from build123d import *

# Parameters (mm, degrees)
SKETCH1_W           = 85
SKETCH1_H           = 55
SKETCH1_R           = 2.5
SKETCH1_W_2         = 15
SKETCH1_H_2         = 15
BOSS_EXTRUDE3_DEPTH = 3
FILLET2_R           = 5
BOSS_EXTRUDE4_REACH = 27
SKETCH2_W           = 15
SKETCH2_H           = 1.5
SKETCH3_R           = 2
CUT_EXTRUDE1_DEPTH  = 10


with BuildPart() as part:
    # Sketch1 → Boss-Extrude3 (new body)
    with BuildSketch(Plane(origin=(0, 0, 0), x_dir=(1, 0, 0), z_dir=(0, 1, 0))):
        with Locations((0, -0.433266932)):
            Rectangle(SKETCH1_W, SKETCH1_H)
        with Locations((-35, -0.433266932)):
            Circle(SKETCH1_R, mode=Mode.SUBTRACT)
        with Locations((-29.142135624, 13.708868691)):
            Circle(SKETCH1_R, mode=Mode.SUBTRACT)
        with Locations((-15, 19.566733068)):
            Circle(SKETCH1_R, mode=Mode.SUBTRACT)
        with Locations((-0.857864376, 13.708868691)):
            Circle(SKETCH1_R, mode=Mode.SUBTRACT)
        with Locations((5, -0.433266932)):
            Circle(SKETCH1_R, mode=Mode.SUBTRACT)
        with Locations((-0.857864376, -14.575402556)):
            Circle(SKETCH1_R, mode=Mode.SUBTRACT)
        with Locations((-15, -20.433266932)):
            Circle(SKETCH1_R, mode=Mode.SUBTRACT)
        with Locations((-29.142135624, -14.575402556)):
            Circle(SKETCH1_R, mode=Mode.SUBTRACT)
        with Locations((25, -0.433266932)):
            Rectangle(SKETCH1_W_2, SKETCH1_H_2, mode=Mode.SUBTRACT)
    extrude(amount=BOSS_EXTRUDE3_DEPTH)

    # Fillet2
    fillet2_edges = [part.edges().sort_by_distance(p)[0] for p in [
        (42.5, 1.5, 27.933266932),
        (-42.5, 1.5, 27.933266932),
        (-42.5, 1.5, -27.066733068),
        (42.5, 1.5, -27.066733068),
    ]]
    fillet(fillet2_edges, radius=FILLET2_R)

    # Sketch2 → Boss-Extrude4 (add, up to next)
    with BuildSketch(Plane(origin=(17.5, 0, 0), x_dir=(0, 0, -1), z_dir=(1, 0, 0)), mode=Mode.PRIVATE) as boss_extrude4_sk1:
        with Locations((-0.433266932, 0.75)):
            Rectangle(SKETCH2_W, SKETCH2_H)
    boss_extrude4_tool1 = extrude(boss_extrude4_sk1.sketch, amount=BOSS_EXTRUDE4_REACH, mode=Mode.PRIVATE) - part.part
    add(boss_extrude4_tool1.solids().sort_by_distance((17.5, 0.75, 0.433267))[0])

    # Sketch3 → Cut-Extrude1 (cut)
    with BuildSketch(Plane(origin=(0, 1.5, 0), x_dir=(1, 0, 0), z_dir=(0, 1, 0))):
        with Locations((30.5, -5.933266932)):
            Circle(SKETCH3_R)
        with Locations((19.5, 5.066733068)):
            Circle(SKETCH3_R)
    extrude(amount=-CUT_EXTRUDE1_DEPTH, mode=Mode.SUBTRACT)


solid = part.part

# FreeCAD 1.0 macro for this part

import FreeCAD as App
import Part
import Sketcher

V = App.Vector


def edges_at(feature, points):
    """Names of the edges that pass closest to the given points."""
    edges = feature.Shape.Edges
    near = lambda p: min(range(len(edges)), key=lambda i: edges[i].distToShape(Part.Vertex(*p))[0])
    return sorted({f"Edge{near(p) + 1}" for p in points})


def add_polygon(sketch, points):
    """Adds a closed chain of lines whose ends are joined by coincident constraints."""
    first, n = sketch.GeometryCount, len(points)
    for a, b in zip(points, points[1:] + points[:1]):
        sketch.addGeometry(Part.LineSegment(App.Vector(*a, 0), App.Vector(*b, 0)), False)
    for i in range(n):
        sketch.addConstraint(Sketcher.Constraint("Coincident", first + i, 2, first + (i + 1) % n, 1))

doc = App.newDocument("Part")
body = doc.addObject("PartDesign::Body", "Body")

sketch1 = body.newObject("Sketcher::SketchObject", "Sketch")
sketch1.AttachmentSupport = (doc.getObject("XZ_Plane"), [""])
sketch1.MapMode = "FlatFace"
add_polygon(sketch1, [(-42.5, -27.066733), (-42.5, 27.933267), (42.5, 27.933267), (42.5, -27.066733)])
sketch1.addGeometry(Part.Circle(V(-29.142136, 14.575403, 0), V(0, 0, 1), 2.5), False)
sketch1.addGeometry(Part.Circle(V(-15, 20.433267, 0), V(0, 0, 1), 2.5), False)
sketch1.addGeometry(Part.Circle(V(-0.857864, 14.575403, 0), V(0, 0, 1), 2.5), False)
sketch1.addGeometry(Part.Circle(V(-35, 0.433267, 0), V(0, 0, 1), 2.5), False)
sketch1.addGeometry(Part.Circle(V(-29.142136, -13.708869, 0), V(0, 0, 1), 2.5), False)
sketch1.addGeometry(Part.Circle(V(-15, -19.566733, 0), V(0, 0, 1), 2.5), False)
sketch1.addGeometry(Part.Circle(V(5, 0.433267, 0), V(0, 0, 1), 2.5), False)
add_polygon(sketch1, [(32.5, 7.933267), (17.5, 7.933267), (17.5, -7.066733), (32.5, -7.066733)])
sketch1.addGeometry(Part.Circle(V(-0.857864, -13.708869, 0), V(0, 0, 1), 2.5), False)
sketch1.addConstraint([
    Sketcher.Constraint("Vertical", 0),
    Sketcher.Constraint("Horizontal", 1),
    Sketcher.Constraint("Vertical", 2),
    Sketcher.Constraint("Horizontal", 3),
    Sketcher.Constraint("Horizontal", 11),
    Sketcher.Constraint("Vertical", 12),
    Sketcher.Constraint("Horizontal", 13),
    Sketcher.Constraint("Vertical", 14),
    Sketcher.Constraint("Equal", 4, 5),
    Sketcher.Constraint("Equal", 5, 6),
    Sketcher.Constraint("Equal", 6, 7),
    Sketcher.Constraint("Equal", 7, 8),
    Sketcher.Constraint("Equal", 8, 9),
    Sketcher.Constraint("Equal", 9, 10),
    Sketcher.Constraint("Equal", 10, 15),
    Sketcher.Constraint("Horizontal", 4, 3, 6, 3),
    Sketcher.Constraint("Horizontal", 7, 3, 10, 3),
    Sketcher.Constraint("Horizontal", 8, 3, 15, 3),
    Sketcher.Constraint("Vertical", 4, 3, 8, 3),
    Sketcher.Constraint("Vertical", 5, 3, 9, 3),
    Sketcher.Constraint("Vertical", 6, 3, 15, 3),
    Sketcher.Constraint("Equal", 13, 12),
    Sketcher.Constraint("Diameter", 4, 5.0),
    Sketcher.Constraint("DistanceX", 1, 1, 1, 2, 85.0),
    Sketcher.Constraint("DistanceX", 11, 2, 11, 1, 15.0),
    Sketcher.Constraint("DistanceY", 0, 1, 0, 2, 55.0),
    Sketcher.Constraint("DistanceX", 5, 3, -1, 1, 15.0),
    Sketcher.Constraint("DistanceX", 7, 3, -1, 1, 35.0),
    Sketcher.Constraint("DistanceX", -1, 1, 10, 3, 5.0),
    Sketcher.Constraint("DistanceY", 7, 3, 5, 3, 20.0),
    Sketcher.Constraint("DistanceY", 9, 3, 7, 3, 20.0),
    Sketcher.Constraint("DistanceX", 11, 2, 1, 2, 25.0),
    Sketcher.Constraint("DistanceY", 11, 2, 1, 2, 20.0),
    Sketcher.Constraint("DistanceX", 0, 2, -1, 1, 42.5),
    Sketcher.Constraint("DistanceY", 5, 3, 0, 2, 7.5),
    Sketcher.Constraint("DistanceY", 8, 3, -1, 1, 13.708869),
    Sketcher.Constraint("DistanceX", 4, 3, 6, 3, 28.284271),
    Sketcher.Constraint("DistanceY", 8, 3, 4, 3, 28.284271),
    Sketcher.Constraint("DistanceX", 4, 3, -1, 1, 29.142136),
    Sketcher.Constraint("DistanceY", -1, 1, 5, 3, 20.433267),
])
pad1 = body.newObject("PartDesign::Pad", "Pad")
pad1.Profile = sketch1
pad1.Length = 3
pad1.Reversed = True
doc.recompute()

fillet = body.newObject("PartDesign::Fillet", "Fillet")
fillet.Base = (pad1, edges_at(pad1, [
    (42.5, 1.5, 27.933),
    (-42.5, 1.5, 27.933),
    (-42.5, 1.5, -27.067),
    (42.5, 1.5, -27.067),
]))
fillet.Radius = 5

sketch2 = body.newObject("Sketcher::SketchObject", "Sketch001")
sketch2.AttachmentSupport = (doc.getObject("YZ_Plane"), [""])
sketch2.MapMode = "FlatFace"
sketch2.AttachmentOffset = App.Placement(V(0, 0, 17.5), App.Rotation())
add_polygon(sketch2, [(1.5, 7.933267), (0, 7.933267), (0, -7.066733), (1.5, -7.066733)])
sketch2.addConstraint([
    Sketcher.Constraint("Horizontal", 0),
    Sketcher.Constraint("Vertical", 1),
    Sketcher.Constraint("Horizontal", 2),
    Sketcher.Constraint("Vertical", 3),
    Sketcher.Constraint("PointOnObject", 0, 2, -2),
    Sketcher.Constraint("DistanceY", 1, 2, 1, 1, 15.0),
    Sketcher.Constraint("DistanceX", 0, 2, 0, 1, 1.5),
    Sketcher.Constraint("DistanceY", -1, 1, 0, 2, 7.933267),
])
pad2 = body.newObject("PartDesign::Pad", "Pad001")
pad2.Profile = sketch2
pad2.Type = "UpToFirst"

sketch3 = body.newObject("Sketcher::SketchObject", "Sketch002")
sketch3.AttachmentSupport = (doc.getObject("XZ_Plane"), [""])
sketch3.MapMode = "FlatFace"
sketch3.AttachmentOffset = App.Placement(V(0, 0, -1.5), App.Rotation())
sketch3.addGeometry([
    Part.Circle(V(30.5, 5.933267, 0), V(0, 0, 1), 2),
    Part.Circle(V(19.5, -5.066733, 0), V(0, 0, 1), 2),
], False)
sketch3.addConstraint([
    Sketcher.Constraint("Equal", 0, 1),
    Sketcher.Constraint("Diameter", 0, 4.0),
    Sketcher.Constraint("DistanceX", 1, 3, 0, 3, 11.0),
    Sketcher.Constraint("DistanceY", 1, 3, 0, 3, 11.0),
    Sketcher.Constraint("DistanceX", -1, 1, 0, 3, 30.5),
    Sketcher.Constraint("DistanceY", -1, 1, 0, 3, 5.933267),
])
pocket1 = body.newObject("PartDesign::Pocket", "Pocket")
pocket1.Profile = sketch3
pocket1.Length = 10
pocket1.Reversed = True

doc.recompute()
